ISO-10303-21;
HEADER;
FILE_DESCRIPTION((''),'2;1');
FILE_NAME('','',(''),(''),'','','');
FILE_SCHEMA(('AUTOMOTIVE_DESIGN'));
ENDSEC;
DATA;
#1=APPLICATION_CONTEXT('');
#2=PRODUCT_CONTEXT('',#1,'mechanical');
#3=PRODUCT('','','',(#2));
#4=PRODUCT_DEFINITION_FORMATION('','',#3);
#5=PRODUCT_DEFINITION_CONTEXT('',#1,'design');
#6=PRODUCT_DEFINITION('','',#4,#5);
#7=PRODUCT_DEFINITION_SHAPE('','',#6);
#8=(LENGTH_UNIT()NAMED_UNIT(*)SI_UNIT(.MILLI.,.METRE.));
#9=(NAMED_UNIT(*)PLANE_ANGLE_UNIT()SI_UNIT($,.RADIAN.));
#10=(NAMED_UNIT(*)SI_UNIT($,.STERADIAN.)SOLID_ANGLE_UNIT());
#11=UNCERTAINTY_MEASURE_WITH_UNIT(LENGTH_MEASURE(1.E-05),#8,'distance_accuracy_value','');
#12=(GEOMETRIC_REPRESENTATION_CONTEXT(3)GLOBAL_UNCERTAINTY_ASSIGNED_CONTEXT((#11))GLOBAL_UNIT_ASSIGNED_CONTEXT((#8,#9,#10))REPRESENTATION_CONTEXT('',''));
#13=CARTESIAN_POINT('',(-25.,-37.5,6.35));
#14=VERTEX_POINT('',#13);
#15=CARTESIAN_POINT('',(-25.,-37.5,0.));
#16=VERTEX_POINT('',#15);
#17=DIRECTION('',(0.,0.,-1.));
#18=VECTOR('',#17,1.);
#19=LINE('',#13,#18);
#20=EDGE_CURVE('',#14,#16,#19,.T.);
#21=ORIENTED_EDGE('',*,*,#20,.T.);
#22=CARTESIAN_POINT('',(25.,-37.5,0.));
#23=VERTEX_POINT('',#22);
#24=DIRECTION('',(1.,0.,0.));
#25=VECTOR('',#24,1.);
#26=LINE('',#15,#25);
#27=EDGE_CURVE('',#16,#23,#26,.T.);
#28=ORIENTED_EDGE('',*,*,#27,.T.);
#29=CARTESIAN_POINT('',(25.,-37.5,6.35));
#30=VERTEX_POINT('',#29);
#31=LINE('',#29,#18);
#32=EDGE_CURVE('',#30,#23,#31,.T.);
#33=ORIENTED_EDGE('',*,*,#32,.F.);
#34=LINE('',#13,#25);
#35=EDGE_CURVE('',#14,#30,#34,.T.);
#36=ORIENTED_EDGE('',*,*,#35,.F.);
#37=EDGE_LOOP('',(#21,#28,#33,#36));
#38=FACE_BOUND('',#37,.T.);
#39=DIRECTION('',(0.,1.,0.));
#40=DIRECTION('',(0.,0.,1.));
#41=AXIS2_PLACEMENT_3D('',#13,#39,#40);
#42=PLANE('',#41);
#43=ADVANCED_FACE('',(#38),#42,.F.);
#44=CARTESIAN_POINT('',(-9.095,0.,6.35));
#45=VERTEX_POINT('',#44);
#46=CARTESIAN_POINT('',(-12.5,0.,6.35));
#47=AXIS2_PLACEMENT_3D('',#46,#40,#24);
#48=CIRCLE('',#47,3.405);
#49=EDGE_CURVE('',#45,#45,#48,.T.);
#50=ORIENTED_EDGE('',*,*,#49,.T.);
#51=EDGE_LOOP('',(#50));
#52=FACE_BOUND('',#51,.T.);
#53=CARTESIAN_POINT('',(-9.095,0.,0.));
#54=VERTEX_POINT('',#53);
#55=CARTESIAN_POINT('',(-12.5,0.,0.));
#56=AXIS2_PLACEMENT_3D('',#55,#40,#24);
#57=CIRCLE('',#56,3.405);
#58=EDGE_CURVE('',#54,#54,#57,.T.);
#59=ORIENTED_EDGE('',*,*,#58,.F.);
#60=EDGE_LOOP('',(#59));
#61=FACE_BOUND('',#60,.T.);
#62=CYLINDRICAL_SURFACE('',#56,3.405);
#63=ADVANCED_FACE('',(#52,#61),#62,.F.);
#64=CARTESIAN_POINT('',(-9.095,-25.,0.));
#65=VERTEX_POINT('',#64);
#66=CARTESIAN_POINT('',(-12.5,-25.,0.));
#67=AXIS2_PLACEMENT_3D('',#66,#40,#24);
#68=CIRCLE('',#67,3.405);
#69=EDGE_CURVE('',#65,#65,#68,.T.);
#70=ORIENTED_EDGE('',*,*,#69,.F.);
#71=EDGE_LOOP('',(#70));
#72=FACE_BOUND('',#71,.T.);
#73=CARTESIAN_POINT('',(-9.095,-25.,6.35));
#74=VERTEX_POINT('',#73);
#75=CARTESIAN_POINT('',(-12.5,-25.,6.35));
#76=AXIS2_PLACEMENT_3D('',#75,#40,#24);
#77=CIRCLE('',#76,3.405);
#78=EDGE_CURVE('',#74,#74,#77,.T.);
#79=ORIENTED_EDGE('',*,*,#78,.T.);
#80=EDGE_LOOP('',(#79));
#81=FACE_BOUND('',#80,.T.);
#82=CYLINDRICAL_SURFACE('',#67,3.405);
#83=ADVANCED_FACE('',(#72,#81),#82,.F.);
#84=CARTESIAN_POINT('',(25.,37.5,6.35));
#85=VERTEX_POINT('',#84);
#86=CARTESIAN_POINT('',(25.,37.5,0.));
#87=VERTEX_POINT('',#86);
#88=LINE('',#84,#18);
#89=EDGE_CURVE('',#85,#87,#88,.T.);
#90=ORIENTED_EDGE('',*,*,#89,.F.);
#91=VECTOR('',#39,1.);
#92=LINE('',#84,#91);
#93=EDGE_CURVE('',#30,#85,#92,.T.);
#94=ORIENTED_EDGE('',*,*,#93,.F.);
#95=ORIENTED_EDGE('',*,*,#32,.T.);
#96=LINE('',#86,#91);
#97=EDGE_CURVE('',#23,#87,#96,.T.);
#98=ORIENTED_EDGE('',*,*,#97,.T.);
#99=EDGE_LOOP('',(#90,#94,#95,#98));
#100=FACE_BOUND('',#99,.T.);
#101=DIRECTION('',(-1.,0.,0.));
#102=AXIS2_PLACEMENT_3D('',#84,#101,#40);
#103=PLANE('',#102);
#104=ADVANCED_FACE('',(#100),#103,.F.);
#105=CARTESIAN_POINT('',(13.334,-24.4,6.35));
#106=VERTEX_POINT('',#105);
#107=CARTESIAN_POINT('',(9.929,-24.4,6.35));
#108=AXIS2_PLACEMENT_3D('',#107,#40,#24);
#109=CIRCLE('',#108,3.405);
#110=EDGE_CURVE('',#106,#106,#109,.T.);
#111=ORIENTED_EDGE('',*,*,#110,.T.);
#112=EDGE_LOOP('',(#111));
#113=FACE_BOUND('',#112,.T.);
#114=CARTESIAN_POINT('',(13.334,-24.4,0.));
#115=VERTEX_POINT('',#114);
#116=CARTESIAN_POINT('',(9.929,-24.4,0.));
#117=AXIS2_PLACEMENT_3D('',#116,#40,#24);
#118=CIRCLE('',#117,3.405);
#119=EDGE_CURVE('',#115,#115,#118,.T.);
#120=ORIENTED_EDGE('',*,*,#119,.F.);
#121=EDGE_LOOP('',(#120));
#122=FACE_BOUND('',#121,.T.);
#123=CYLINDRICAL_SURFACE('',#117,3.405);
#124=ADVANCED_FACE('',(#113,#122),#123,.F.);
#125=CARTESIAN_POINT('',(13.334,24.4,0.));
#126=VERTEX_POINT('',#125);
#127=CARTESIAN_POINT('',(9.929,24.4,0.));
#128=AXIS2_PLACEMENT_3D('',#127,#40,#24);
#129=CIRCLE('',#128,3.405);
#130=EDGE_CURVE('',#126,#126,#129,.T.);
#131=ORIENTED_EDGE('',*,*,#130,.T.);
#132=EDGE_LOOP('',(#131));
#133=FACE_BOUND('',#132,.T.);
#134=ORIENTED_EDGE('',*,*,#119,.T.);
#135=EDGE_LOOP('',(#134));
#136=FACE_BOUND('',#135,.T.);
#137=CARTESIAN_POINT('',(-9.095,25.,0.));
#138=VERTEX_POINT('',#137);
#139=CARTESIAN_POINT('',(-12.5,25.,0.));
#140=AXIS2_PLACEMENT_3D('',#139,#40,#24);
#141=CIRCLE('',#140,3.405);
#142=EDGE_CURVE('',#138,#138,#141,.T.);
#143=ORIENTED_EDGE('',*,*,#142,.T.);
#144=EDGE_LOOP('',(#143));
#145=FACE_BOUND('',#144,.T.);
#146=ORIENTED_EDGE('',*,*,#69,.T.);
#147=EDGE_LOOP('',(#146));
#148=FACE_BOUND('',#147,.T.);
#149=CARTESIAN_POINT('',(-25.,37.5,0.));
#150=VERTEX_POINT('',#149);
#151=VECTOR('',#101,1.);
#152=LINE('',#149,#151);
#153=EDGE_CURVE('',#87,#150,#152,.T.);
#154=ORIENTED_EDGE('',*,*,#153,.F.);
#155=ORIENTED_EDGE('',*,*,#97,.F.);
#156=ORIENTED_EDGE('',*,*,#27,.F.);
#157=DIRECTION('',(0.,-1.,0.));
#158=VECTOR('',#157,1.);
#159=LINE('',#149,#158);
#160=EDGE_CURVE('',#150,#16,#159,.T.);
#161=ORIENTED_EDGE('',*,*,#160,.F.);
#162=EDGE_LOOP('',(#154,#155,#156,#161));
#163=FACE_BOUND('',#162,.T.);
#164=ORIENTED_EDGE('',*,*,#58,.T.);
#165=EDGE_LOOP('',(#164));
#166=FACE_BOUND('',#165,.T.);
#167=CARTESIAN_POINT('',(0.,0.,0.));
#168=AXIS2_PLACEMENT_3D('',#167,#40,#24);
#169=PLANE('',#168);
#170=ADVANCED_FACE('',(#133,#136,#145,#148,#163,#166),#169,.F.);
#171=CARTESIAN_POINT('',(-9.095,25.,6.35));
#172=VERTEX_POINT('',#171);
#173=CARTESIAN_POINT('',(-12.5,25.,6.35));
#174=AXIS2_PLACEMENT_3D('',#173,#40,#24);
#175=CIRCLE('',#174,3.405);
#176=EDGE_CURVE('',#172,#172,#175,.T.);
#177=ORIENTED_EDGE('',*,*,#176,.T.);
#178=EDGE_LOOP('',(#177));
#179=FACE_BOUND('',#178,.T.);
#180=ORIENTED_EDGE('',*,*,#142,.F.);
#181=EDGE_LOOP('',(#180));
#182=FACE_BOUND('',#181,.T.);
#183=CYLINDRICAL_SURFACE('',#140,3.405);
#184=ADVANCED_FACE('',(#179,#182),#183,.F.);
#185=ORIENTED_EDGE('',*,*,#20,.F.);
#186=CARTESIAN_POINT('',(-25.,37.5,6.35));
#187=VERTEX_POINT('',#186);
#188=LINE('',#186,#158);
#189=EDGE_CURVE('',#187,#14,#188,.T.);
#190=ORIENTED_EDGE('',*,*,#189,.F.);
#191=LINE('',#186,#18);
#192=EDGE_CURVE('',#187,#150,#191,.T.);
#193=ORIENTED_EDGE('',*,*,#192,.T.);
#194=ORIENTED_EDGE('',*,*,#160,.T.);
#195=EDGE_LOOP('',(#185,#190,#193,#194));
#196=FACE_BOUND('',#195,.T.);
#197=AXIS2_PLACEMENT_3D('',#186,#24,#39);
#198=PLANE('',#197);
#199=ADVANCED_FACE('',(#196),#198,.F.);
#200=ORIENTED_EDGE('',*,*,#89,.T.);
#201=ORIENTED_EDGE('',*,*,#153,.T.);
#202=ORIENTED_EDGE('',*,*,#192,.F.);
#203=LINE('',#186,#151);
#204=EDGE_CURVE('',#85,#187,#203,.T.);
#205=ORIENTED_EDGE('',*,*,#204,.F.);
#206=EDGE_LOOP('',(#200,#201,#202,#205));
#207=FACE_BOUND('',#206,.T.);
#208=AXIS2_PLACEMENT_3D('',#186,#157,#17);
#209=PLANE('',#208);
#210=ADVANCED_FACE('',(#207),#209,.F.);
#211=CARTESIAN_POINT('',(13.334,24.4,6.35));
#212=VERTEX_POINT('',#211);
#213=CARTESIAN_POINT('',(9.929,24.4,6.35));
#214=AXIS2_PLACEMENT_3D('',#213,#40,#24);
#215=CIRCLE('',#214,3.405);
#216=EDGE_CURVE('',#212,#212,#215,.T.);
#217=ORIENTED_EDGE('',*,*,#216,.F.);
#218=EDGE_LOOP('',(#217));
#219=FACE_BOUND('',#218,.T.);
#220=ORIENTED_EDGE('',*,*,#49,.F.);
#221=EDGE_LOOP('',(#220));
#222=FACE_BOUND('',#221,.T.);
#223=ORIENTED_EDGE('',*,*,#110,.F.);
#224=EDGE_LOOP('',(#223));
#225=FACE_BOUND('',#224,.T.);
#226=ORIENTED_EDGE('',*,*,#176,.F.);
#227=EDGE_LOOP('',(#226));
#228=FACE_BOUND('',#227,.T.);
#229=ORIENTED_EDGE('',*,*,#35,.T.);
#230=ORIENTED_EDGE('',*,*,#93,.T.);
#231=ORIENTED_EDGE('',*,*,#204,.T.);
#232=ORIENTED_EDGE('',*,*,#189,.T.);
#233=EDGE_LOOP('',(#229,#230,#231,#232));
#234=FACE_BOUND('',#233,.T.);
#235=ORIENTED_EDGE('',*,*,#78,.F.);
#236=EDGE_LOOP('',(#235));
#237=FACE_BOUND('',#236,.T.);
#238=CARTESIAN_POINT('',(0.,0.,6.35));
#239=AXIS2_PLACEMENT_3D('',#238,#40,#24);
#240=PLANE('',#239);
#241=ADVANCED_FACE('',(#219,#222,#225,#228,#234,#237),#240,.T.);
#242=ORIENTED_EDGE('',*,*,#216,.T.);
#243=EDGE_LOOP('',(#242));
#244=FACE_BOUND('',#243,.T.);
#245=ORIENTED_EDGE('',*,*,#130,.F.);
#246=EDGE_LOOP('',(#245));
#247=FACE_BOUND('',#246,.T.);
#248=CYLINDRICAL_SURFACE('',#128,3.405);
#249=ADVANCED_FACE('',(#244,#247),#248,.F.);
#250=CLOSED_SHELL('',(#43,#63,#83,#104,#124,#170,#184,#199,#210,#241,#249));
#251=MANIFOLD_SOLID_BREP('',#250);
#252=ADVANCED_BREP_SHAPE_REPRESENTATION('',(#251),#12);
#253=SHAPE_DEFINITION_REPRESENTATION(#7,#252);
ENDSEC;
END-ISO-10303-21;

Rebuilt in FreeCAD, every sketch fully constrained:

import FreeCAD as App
import Part
import Sketcher
from FreeCAD import Vector
Q = App.Units.Quantity


def add_polygon(sketch, points):
    """Adds a closed chain of lines whose ends are joined by coincident constraints."""
    first, n = sketch.GeometryCount, len(points)
    for a, b in zip(points, points[1:] + points[:1]):
        sketch.addGeometry(Part.LineSegment(App.Vector(*a, 0), App.Vector(*b, 0)), False)
    for i in range(n):
        sketch.addConstraint(Sketcher.Constraint("Coincident", first + i, 2, first + (i + 1) % n, 1))

doc = App.newDocument("Part")
body = doc.addObject("PartDesign::Body", "Body")

# Sketch on XY plane
sketch1 = body.newObject("Sketcher::SketchObject", "Sketch")
sketch1.AttachmentSupport = (doc.getObject("XY_Plane"), [""])
sketch1.MapMode = "FlatFace"
add_polygon(sketch1, [(-25, 37.5), (-25, -37.5), (25, -37.5), (25, 37.5)])  # lines 0-3
sketch1.addConstraint(Sketcher.Constraint("Vertical", 0))
sketch1.addConstraint(Sketcher.Constraint("Horizontal", 1))
sketch1.addConstraint(Sketcher.Constraint("Vertical", 2))
sketch1.addConstraint(Sketcher.Constraint("Horizontal", 3))
sketch1.addConstraint(Sketcher.Constraint("Symmetric", 0, 2, 2, 2, -1, 1))
sketch1.addConstraint(Sketcher.Constraint("DistanceX", 1, 1, 1, 2, Q("50 mm")))
sketch1.addConstraint(Sketcher.Constraint("DistanceY", 0, 2, 0, 1, Q("75 mm")))
pad1 = body.newObject("PartDesign::Pad", "Pad")
pad1.Profile = sketch1
pad1.Length = 6.35

# Sketch on XY plane
sketch2 = body.newObject("Sketcher::SketchObject", "Sketch001")
sketch2.AttachmentSupport = (doc.getObject("XY_Plane"), [""])
sketch2.MapMode = "FlatFace"
sketch2.AttachmentOffset = App.Placement(Vector(0, 0, 6.35), App.Rotation())
sketch2.addGeometry(Part.Circle(Vector(-12.5, 25, 0), Vector(0, 0, 1), 3.405), False)
sketch2.addGeometry(Part.Circle(Vector(9.929, 24.4, 0), Vector(0, 0, 1), 3.405), False)
sketch2.addGeometry(Part.Circle(Vector(-12.5, 0, 0), Vector(0, 0, 1), 3.405), False)
sketch2.addGeometry(Part.Circle(Vector(-12.5, -25, 0), Vector(0, 0, 1), 3.405), False)
sketch2.addGeometry(Part.Circle(Vector(9.929, -24.4, 0), Vector(0, 0, 1), 3.405), False)
sketch2.addConstraint(Sketcher.Constraint("Equal", 0, 1))
sketch2.addConstraint(Sketcher.Constraint("Equal", 1, 2))
sketch2.addConstraint(Sketcher.Constraint("Equal", 2, 3))
sketch2.addConstraint(Sketcher.Constraint("Equal", 3, 4))
sketch2.addConstraint(Sketcher.Constraint("Symmetric", 0, 3, 3, 3, -1))
sketch2.addConstraint(Sketcher.Constraint("Symmetric", 1, 3, 4, 3, -1))
sketch2.addConstraint(Sketcher.Constraint("PointOnObject", 2, 3, -1))
sketch2.addConstraint(Sketcher.Constraint("Vertical", 0, 3, 2, 3))
sketch2.addConstraint(Sketcher.Constraint("Diameter", 0, Q("6.81 mm")))
sketch2.addConstraint(Sketcher.Constraint("DistanceY", -1, 1, 0, 3, Q("25 mm")))
sketch2.addConstraint(Sketcher.Constraint("DistanceX", 0, 3, -1, 1, Q("12.5 mm")))
sketch2.addConstraint(Sketcher.Constraint("DistanceY", -1, 1, 1, 3, Q("24.4 mm")))
sketch2.addConstraint(Sketcher.Constraint("DistanceX", -1, 1, 1, 3, Q("9.929 mm")))
pocket1 = body.newObject("PartDesign::Pocket", "Pocket")
pocket1.Profile = sketch2
pocket1.Type = "ThroughAll"

doc.recompute()
